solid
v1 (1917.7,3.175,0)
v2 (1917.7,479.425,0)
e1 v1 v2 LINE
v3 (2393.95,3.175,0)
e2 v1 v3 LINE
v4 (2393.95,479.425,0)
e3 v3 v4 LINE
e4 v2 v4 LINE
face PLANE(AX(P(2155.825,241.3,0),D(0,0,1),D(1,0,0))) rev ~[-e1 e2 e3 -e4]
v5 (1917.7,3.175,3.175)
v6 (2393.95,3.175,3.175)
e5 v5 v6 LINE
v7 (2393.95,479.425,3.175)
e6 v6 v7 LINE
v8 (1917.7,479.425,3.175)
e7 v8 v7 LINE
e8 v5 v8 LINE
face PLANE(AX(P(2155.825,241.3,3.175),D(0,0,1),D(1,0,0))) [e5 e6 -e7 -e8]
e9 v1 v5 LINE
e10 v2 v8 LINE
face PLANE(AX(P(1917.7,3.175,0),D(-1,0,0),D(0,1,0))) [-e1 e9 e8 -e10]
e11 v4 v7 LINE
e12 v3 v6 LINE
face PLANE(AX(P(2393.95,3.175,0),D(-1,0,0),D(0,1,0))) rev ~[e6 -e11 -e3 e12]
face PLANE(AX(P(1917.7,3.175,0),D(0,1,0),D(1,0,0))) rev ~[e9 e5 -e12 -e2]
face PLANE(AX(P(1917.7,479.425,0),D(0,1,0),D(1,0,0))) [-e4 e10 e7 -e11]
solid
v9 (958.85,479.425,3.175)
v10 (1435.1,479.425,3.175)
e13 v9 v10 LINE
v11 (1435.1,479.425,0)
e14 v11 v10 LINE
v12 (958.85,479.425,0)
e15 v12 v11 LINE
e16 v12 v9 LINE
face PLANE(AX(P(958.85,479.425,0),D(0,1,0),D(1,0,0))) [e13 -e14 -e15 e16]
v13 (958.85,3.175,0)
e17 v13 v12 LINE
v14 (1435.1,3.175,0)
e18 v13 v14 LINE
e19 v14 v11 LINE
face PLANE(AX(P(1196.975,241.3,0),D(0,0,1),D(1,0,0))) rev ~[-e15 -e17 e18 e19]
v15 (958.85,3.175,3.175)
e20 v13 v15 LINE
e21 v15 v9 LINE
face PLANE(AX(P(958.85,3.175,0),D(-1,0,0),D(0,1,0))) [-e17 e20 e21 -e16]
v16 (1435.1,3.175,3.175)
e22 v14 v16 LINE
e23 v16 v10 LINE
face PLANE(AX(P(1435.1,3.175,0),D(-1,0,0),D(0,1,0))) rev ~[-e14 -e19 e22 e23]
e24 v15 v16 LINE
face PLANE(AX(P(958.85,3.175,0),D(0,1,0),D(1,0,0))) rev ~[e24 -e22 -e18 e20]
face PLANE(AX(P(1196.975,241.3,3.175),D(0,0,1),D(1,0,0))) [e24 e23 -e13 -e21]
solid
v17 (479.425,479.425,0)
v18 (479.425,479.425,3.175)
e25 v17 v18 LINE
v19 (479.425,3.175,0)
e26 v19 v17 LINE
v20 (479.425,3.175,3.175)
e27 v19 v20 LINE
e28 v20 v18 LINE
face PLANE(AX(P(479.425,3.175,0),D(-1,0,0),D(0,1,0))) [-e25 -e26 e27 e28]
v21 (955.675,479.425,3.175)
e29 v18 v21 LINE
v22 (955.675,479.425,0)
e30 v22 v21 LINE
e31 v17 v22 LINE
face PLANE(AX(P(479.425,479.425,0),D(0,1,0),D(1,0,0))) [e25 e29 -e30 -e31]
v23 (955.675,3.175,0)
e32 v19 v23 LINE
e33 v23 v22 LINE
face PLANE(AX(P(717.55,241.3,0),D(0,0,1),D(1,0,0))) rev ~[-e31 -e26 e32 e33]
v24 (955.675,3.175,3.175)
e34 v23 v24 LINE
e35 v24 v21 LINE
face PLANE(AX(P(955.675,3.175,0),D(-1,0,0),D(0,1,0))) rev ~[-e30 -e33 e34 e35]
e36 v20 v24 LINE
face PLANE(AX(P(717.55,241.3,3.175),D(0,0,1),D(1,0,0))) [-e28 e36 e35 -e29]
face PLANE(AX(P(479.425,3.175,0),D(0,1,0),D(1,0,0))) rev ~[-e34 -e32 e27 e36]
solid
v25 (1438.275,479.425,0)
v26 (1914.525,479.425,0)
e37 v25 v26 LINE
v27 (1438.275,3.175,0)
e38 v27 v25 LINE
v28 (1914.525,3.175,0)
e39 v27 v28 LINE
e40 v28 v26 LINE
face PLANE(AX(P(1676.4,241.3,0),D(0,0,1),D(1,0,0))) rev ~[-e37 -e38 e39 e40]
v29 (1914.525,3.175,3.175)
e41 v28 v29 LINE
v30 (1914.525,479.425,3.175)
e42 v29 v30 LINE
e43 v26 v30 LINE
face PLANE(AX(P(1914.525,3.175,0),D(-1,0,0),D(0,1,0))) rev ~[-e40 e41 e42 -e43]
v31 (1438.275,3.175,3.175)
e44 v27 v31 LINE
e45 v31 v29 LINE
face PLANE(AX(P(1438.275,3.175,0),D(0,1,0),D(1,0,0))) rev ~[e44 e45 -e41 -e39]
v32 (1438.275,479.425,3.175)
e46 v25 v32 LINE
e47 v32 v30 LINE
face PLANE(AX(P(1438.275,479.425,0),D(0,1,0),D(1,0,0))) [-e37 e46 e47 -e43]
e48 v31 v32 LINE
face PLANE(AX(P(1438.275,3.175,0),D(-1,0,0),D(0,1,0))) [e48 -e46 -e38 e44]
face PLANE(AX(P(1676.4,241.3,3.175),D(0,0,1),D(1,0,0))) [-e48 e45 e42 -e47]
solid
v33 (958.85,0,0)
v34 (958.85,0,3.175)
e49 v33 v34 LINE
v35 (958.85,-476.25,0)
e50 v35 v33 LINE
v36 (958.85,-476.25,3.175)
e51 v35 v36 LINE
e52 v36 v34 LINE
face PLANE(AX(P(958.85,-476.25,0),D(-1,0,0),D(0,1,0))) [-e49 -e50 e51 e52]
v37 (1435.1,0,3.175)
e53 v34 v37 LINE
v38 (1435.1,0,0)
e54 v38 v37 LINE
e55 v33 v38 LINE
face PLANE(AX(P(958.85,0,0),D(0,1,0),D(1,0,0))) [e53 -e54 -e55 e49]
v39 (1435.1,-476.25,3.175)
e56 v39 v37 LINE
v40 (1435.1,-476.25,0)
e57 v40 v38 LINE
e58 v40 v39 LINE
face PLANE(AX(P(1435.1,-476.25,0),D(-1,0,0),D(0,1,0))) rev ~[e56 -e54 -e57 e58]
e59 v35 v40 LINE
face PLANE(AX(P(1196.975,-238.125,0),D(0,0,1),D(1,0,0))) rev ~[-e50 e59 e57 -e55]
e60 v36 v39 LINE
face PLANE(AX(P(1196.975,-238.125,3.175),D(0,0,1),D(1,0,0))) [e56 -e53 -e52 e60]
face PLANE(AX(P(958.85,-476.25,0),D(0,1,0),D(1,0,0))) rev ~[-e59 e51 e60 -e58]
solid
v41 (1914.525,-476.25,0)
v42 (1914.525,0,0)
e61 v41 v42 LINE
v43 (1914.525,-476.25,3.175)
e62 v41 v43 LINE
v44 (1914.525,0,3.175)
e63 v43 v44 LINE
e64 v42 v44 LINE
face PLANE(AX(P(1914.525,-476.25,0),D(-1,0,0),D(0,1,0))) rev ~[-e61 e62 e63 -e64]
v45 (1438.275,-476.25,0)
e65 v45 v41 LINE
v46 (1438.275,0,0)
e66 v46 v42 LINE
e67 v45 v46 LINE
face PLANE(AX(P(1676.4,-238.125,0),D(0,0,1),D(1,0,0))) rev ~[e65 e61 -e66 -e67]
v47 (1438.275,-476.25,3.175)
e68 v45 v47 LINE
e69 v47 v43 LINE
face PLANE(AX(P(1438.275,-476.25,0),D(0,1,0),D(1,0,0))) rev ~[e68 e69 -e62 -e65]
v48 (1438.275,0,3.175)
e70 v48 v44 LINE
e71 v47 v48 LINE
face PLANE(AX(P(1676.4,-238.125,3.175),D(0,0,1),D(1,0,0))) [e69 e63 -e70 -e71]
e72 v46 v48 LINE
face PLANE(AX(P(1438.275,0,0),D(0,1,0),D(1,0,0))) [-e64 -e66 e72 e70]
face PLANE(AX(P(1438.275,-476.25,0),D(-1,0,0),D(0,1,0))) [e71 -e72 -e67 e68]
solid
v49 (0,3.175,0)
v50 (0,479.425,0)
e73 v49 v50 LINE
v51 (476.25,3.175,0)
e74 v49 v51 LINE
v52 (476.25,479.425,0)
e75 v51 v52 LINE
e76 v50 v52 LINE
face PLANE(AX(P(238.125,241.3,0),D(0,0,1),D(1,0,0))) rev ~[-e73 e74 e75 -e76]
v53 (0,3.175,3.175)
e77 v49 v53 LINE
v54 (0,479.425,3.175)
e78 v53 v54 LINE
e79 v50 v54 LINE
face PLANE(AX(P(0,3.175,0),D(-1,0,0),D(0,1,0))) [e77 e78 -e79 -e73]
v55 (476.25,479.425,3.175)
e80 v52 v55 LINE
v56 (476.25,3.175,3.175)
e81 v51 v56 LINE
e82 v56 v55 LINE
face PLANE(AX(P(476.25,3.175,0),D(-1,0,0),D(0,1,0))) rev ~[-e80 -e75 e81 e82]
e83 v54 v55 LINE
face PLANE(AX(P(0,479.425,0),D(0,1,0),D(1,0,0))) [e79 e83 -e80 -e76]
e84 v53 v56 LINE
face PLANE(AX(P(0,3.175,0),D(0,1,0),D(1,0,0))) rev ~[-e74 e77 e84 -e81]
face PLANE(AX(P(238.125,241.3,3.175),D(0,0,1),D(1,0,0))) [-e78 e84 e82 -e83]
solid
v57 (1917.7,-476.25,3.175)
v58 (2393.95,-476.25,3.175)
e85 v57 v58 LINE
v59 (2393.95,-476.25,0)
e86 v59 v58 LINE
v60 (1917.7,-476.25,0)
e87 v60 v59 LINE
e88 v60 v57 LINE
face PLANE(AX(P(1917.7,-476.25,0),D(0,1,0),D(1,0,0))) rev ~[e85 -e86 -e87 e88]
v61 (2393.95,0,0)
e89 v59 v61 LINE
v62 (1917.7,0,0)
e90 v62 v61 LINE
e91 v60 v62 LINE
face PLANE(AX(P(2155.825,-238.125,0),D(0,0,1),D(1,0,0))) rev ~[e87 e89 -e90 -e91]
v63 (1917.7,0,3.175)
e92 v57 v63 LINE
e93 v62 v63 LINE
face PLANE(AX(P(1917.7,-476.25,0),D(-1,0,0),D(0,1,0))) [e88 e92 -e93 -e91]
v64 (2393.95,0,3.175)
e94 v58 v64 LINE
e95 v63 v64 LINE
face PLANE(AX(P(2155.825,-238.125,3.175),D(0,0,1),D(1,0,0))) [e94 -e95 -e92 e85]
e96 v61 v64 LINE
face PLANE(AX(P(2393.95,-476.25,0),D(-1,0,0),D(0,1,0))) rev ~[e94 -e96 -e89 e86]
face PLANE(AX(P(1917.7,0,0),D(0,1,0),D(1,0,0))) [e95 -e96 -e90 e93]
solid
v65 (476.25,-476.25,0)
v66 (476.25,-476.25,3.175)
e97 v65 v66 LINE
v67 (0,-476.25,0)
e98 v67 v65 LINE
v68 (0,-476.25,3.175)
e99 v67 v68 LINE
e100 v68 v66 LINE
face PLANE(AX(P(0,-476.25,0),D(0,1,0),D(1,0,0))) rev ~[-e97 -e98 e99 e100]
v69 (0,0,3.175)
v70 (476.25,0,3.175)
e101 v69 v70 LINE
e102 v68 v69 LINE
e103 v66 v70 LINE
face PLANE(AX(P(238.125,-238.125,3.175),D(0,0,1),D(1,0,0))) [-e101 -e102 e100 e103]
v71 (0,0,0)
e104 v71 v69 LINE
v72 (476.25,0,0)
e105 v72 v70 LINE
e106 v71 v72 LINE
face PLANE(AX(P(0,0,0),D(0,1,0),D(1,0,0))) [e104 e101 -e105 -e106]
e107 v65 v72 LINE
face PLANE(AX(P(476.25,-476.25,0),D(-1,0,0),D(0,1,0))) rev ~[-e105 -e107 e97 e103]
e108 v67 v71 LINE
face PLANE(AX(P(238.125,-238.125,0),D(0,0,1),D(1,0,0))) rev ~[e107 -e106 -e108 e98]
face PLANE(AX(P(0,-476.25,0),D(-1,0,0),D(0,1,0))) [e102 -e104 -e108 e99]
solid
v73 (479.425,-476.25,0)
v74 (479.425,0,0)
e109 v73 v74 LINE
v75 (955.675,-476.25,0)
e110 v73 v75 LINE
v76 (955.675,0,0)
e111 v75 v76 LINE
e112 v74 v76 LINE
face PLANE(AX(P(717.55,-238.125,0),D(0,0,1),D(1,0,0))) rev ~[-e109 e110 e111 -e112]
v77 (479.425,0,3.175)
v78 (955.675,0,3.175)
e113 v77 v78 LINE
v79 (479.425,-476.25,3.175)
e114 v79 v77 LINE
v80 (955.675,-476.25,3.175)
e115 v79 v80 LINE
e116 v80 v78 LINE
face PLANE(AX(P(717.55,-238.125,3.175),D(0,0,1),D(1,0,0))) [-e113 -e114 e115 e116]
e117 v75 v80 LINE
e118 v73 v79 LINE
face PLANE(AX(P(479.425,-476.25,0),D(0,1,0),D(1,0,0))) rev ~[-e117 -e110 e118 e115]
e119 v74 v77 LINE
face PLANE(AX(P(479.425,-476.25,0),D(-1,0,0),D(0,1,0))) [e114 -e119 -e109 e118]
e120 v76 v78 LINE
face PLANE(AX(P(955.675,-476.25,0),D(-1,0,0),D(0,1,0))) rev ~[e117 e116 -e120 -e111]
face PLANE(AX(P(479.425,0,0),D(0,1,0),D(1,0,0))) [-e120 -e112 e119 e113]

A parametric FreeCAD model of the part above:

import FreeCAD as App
import Part
import Sketcher

V = App.Vector
Q = App.Units.Quantity


def add_polygon(sketch, points):
    """Adds a closed chain of lines whose ends are joined by coincident constraints."""
    first, n = sketch.GeometryCount, len(points)
    for a, b in zip(points, points[1:] + points[:1]):
        sketch.addGeometry(Part.LineSegment(App.Vector(*a, 0), App.Vector(*b, 0)), False)
    for i in range(n):
        sketch.addConstraint(Sketcher.Constraint("Coincident", first + i, 2, first + (i + 1) % n, 1))

doc = App.newDocument("Part")
body = doc.addObject("PartDesign::Body", "Body")
body.AllowCompound = True

# Sketch on XY plane
sketch1 = doc.addObject("Sketcher::SketchObject", "Sketch")
body.addObject(sketch1)
sketch1.AttachmentSupport = (doc.XY_Plane, [""])
sketch1.MapMode = "FlatFace"
add_polygon(sketch1, [(0, 0), (0, -476.25), (476.25, -476.25), (476.25, 0)])  # lines 0-3
add_polygon(sketch1, [(0, 479.425), (0, 3.175), (476.25, 3.175), (476.25, 479.425)])  # lines 4-7
add_polygon(sketch1, [(479.425, 0), (479.425, -476.25), (955.675, -476.25), (955.675, 0)])  # lines 8-11
add_polygon(sketch1, [(479.425, 479.425), (479.425, 3.175), (955.675, 3.175), (955.675, 479.425)])  # lines 12-15
add_polygon(sketch1, [(958.85, 0), (958.85, -476.25), (1435.1, -476.25), (1435.1, 0)])  # lines 16-19
add_polygon(sketch1, [(958.85, 479.425), (958.85, 3.175), (1435.1, 3.175), (1435.1, 479.425)])  # lines 20-23
add_polygon(sketch1, [(1438.275, 0), (1438.275, -476.25), (1914.525, -476.25), (1914.525, 0)])  # lines 24-27
add_polygon(sketch1, [(1438.275, 479.425), (1438.275, 3.175), (1914.525, 3.175), (1914.525, 479.425)])  # lines 28-31
add_polygon(sketch1, [(1917.7, 0), (1917.7, -476.25), (2393.95, -476.25), (2393.95, 0)])  # lines 32-35
add_polygon(sketch1, [(1917.7, 479.425), (1917.7, 3.175), (2393.95, 3.175), (2393.95, 479.425)])  # lines 36-39
sketch1.addConstraint([
    Sketcher.Constraint("Vertical", 0),
    Sketcher.Constraint("Horizontal", 1),
    Sketcher.Constraint("Vertical", 2),
    Sketcher.Constraint("Horizontal", 3),
    Sketcher.Constraint("Vertical", 4),
    Sketcher.Constraint("Horizontal", 5),
    Sketcher.Constraint("Vertical", 6),
    Sketcher.Constraint("Horizontal", 7),
    Sketcher.Constraint("Vertical", 8),
    Sketcher.Constraint("Horizontal", 9),
    Sketcher.Constraint("Vertical", 10),
    Sketcher.Constraint("Horizontal", 11),
    Sketcher.Constraint("Vertical", 12),
    Sketcher.Constraint("Horizontal", 13),
    Sketcher.Constraint("Vertical", 14),
    Sketcher.Constraint("Horizontal", 15),
    Sketcher.Constraint("Vertical", 16),
    Sketcher.Constraint("Horizontal", 17),
    Sketcher.Constraint("Vertical", 18),
    Sketcher.Constraint("Horizontal", 19),
    Sketcher.Constraint("Vertical", 20),
    Sketcher.Constraint("Horizontal", 21),
    Sketcher.Constraint("Vertical", 22),
    Sketcher.Constraint("Horizontal", 23),
    Sketcher.Constraint("Vertical", 24),
    Sketcher.Constraint("Horizontal", 25),
    Sketcher.Constraint("Vertical", 26),
    Sketcher.Constraint("Horizontal", 27),
    Sketcher.Constraint("Vertical", 28),
    Sketcher.Constraint("Horizontal", 29),
    Sketcher.Constraint("Vertical", 30),
    Sketcher.Constraint("Horizontal", 31),
    Sketcher.Constraint("Vertical", 32),
    Sketcher.Constraint("Horizontal", 33),
    Sketcher.Constraint("Vertical", 34),
    Sketcher.Constraint("Horizontal", 35),
    Sketcher.Constraint("Vertical", 36),
    Sketcher.Constraint("Horizontal", 37),
    Sketcher.Constraint("Vertical", 38),
    Sketcher.Constraint("Horizontal", 39),
    Sketcher.Constraint("Coincident", 3, 2, -1, 1),
    Sketcher.Constraint("PointOnObject", 4, 2, -2),
    Sketcher.Constraint("PointOnObject", 10, 2, -1),
    Sketcher.Constraint("PointOnObject", 18, 2, -1),
    Sketcher.Constraint("PointOnObject", 26, 2, -1),
    Sketcher.Constraint("PointOnObject", 34, 2, -1),
    Sketcher.Constraint("Horizontal", 1, 2, 8, 2),
    Sketcher.Constraint("Horizontal", 5, 2, 12, 2),
    Sketcher.Constraint("Horizontal", 7, 2, 14, 2),
    Sketcher.Constraint("Horizontal", 9, 2, 16, 2),
    Sketcher.Constraint("Horizontal", 13, 2, 20, 2),
    Sketcher.Constraint("Horizontal", 15, 2, 22, 2),
    Sketcher.Constraint("Horizontal", 17, 2, 24, 2),
    Sketcher.Constraint("Horizontal", 21, 2, 28, 2),
    Sketcher.Constraint("Horizontal", 23, 2, 30, 2),
    Sketcher.Constraint("Horizontal", 25, 2, 32, 2),
    Sketcher.Constraint("Horizontal", 29, 2, 36, 2),
    Sketcher.Constraint("Horizontal", 31, 2, 38, 2),
    Sketcher.Constraint("Vertical", 2, 2, 5, 2),
    Sketcher.Constraint("Vertical", 11, 2, 12, 2),
    Sketcher.Constraint("Vertical", 10, 2, 13, 2),
    Sketcher.Constraint("Vertical", 19, 2, 20, 2),
    Sketcher.Constraint("Vertical", 18, 2, 21, 2),
    Sketcher.Constraint("Vertical", 27, 2, 28, 2),
    Sketcher.Constraint("Vertical", 26, 2, 29, 2),
    Sketcher.Constraint("Vertical", 35, 2, 36, 2),
    Sketcher.Constraint("Vertical", 34, 2, 37, 2),
    Sketcher.Constraint("Equal", 7, 9),
    Sketcher.Constraint("Equal", 15, 17),
    Sketcher.Constraint("Equal", 23, 25),
    Sketcher.Constraint("Equal", 31, 33),
    Sketcher.Constraint("Equal", 39, 0),
    Sketcher.Constraint("Equal", 2, 4),
    Sketcher.Constraint("DistanceX", 1, 2, 16, 2, Q("19 in")),
    Sketcher.Constraint("DistanceX", 9, 2, 24, 2, Q("19 in")),
    Sketcher.Constraint("DistanceX", 17, 2, 32, 2, Q("19 in")),
    Sketcher.Constraint("DistanceX", 1, 1, 1, 2, Q("18.75 in")),
    Sketcher.Constraint("DistanceY", -1, 1, 4, 2, Q("0.125 in")),
    Sketcher.Constraint("DistanceX", -1, 1, 8, 2, Q("18.875 in")),
])
pad1 = doc.addObject("PartDesign::Pad", "Pad")
body.addObject(pad1)
pad1.Profile = sketch1
pad1.Length = Q("0.125 in")

doc.recompute()
